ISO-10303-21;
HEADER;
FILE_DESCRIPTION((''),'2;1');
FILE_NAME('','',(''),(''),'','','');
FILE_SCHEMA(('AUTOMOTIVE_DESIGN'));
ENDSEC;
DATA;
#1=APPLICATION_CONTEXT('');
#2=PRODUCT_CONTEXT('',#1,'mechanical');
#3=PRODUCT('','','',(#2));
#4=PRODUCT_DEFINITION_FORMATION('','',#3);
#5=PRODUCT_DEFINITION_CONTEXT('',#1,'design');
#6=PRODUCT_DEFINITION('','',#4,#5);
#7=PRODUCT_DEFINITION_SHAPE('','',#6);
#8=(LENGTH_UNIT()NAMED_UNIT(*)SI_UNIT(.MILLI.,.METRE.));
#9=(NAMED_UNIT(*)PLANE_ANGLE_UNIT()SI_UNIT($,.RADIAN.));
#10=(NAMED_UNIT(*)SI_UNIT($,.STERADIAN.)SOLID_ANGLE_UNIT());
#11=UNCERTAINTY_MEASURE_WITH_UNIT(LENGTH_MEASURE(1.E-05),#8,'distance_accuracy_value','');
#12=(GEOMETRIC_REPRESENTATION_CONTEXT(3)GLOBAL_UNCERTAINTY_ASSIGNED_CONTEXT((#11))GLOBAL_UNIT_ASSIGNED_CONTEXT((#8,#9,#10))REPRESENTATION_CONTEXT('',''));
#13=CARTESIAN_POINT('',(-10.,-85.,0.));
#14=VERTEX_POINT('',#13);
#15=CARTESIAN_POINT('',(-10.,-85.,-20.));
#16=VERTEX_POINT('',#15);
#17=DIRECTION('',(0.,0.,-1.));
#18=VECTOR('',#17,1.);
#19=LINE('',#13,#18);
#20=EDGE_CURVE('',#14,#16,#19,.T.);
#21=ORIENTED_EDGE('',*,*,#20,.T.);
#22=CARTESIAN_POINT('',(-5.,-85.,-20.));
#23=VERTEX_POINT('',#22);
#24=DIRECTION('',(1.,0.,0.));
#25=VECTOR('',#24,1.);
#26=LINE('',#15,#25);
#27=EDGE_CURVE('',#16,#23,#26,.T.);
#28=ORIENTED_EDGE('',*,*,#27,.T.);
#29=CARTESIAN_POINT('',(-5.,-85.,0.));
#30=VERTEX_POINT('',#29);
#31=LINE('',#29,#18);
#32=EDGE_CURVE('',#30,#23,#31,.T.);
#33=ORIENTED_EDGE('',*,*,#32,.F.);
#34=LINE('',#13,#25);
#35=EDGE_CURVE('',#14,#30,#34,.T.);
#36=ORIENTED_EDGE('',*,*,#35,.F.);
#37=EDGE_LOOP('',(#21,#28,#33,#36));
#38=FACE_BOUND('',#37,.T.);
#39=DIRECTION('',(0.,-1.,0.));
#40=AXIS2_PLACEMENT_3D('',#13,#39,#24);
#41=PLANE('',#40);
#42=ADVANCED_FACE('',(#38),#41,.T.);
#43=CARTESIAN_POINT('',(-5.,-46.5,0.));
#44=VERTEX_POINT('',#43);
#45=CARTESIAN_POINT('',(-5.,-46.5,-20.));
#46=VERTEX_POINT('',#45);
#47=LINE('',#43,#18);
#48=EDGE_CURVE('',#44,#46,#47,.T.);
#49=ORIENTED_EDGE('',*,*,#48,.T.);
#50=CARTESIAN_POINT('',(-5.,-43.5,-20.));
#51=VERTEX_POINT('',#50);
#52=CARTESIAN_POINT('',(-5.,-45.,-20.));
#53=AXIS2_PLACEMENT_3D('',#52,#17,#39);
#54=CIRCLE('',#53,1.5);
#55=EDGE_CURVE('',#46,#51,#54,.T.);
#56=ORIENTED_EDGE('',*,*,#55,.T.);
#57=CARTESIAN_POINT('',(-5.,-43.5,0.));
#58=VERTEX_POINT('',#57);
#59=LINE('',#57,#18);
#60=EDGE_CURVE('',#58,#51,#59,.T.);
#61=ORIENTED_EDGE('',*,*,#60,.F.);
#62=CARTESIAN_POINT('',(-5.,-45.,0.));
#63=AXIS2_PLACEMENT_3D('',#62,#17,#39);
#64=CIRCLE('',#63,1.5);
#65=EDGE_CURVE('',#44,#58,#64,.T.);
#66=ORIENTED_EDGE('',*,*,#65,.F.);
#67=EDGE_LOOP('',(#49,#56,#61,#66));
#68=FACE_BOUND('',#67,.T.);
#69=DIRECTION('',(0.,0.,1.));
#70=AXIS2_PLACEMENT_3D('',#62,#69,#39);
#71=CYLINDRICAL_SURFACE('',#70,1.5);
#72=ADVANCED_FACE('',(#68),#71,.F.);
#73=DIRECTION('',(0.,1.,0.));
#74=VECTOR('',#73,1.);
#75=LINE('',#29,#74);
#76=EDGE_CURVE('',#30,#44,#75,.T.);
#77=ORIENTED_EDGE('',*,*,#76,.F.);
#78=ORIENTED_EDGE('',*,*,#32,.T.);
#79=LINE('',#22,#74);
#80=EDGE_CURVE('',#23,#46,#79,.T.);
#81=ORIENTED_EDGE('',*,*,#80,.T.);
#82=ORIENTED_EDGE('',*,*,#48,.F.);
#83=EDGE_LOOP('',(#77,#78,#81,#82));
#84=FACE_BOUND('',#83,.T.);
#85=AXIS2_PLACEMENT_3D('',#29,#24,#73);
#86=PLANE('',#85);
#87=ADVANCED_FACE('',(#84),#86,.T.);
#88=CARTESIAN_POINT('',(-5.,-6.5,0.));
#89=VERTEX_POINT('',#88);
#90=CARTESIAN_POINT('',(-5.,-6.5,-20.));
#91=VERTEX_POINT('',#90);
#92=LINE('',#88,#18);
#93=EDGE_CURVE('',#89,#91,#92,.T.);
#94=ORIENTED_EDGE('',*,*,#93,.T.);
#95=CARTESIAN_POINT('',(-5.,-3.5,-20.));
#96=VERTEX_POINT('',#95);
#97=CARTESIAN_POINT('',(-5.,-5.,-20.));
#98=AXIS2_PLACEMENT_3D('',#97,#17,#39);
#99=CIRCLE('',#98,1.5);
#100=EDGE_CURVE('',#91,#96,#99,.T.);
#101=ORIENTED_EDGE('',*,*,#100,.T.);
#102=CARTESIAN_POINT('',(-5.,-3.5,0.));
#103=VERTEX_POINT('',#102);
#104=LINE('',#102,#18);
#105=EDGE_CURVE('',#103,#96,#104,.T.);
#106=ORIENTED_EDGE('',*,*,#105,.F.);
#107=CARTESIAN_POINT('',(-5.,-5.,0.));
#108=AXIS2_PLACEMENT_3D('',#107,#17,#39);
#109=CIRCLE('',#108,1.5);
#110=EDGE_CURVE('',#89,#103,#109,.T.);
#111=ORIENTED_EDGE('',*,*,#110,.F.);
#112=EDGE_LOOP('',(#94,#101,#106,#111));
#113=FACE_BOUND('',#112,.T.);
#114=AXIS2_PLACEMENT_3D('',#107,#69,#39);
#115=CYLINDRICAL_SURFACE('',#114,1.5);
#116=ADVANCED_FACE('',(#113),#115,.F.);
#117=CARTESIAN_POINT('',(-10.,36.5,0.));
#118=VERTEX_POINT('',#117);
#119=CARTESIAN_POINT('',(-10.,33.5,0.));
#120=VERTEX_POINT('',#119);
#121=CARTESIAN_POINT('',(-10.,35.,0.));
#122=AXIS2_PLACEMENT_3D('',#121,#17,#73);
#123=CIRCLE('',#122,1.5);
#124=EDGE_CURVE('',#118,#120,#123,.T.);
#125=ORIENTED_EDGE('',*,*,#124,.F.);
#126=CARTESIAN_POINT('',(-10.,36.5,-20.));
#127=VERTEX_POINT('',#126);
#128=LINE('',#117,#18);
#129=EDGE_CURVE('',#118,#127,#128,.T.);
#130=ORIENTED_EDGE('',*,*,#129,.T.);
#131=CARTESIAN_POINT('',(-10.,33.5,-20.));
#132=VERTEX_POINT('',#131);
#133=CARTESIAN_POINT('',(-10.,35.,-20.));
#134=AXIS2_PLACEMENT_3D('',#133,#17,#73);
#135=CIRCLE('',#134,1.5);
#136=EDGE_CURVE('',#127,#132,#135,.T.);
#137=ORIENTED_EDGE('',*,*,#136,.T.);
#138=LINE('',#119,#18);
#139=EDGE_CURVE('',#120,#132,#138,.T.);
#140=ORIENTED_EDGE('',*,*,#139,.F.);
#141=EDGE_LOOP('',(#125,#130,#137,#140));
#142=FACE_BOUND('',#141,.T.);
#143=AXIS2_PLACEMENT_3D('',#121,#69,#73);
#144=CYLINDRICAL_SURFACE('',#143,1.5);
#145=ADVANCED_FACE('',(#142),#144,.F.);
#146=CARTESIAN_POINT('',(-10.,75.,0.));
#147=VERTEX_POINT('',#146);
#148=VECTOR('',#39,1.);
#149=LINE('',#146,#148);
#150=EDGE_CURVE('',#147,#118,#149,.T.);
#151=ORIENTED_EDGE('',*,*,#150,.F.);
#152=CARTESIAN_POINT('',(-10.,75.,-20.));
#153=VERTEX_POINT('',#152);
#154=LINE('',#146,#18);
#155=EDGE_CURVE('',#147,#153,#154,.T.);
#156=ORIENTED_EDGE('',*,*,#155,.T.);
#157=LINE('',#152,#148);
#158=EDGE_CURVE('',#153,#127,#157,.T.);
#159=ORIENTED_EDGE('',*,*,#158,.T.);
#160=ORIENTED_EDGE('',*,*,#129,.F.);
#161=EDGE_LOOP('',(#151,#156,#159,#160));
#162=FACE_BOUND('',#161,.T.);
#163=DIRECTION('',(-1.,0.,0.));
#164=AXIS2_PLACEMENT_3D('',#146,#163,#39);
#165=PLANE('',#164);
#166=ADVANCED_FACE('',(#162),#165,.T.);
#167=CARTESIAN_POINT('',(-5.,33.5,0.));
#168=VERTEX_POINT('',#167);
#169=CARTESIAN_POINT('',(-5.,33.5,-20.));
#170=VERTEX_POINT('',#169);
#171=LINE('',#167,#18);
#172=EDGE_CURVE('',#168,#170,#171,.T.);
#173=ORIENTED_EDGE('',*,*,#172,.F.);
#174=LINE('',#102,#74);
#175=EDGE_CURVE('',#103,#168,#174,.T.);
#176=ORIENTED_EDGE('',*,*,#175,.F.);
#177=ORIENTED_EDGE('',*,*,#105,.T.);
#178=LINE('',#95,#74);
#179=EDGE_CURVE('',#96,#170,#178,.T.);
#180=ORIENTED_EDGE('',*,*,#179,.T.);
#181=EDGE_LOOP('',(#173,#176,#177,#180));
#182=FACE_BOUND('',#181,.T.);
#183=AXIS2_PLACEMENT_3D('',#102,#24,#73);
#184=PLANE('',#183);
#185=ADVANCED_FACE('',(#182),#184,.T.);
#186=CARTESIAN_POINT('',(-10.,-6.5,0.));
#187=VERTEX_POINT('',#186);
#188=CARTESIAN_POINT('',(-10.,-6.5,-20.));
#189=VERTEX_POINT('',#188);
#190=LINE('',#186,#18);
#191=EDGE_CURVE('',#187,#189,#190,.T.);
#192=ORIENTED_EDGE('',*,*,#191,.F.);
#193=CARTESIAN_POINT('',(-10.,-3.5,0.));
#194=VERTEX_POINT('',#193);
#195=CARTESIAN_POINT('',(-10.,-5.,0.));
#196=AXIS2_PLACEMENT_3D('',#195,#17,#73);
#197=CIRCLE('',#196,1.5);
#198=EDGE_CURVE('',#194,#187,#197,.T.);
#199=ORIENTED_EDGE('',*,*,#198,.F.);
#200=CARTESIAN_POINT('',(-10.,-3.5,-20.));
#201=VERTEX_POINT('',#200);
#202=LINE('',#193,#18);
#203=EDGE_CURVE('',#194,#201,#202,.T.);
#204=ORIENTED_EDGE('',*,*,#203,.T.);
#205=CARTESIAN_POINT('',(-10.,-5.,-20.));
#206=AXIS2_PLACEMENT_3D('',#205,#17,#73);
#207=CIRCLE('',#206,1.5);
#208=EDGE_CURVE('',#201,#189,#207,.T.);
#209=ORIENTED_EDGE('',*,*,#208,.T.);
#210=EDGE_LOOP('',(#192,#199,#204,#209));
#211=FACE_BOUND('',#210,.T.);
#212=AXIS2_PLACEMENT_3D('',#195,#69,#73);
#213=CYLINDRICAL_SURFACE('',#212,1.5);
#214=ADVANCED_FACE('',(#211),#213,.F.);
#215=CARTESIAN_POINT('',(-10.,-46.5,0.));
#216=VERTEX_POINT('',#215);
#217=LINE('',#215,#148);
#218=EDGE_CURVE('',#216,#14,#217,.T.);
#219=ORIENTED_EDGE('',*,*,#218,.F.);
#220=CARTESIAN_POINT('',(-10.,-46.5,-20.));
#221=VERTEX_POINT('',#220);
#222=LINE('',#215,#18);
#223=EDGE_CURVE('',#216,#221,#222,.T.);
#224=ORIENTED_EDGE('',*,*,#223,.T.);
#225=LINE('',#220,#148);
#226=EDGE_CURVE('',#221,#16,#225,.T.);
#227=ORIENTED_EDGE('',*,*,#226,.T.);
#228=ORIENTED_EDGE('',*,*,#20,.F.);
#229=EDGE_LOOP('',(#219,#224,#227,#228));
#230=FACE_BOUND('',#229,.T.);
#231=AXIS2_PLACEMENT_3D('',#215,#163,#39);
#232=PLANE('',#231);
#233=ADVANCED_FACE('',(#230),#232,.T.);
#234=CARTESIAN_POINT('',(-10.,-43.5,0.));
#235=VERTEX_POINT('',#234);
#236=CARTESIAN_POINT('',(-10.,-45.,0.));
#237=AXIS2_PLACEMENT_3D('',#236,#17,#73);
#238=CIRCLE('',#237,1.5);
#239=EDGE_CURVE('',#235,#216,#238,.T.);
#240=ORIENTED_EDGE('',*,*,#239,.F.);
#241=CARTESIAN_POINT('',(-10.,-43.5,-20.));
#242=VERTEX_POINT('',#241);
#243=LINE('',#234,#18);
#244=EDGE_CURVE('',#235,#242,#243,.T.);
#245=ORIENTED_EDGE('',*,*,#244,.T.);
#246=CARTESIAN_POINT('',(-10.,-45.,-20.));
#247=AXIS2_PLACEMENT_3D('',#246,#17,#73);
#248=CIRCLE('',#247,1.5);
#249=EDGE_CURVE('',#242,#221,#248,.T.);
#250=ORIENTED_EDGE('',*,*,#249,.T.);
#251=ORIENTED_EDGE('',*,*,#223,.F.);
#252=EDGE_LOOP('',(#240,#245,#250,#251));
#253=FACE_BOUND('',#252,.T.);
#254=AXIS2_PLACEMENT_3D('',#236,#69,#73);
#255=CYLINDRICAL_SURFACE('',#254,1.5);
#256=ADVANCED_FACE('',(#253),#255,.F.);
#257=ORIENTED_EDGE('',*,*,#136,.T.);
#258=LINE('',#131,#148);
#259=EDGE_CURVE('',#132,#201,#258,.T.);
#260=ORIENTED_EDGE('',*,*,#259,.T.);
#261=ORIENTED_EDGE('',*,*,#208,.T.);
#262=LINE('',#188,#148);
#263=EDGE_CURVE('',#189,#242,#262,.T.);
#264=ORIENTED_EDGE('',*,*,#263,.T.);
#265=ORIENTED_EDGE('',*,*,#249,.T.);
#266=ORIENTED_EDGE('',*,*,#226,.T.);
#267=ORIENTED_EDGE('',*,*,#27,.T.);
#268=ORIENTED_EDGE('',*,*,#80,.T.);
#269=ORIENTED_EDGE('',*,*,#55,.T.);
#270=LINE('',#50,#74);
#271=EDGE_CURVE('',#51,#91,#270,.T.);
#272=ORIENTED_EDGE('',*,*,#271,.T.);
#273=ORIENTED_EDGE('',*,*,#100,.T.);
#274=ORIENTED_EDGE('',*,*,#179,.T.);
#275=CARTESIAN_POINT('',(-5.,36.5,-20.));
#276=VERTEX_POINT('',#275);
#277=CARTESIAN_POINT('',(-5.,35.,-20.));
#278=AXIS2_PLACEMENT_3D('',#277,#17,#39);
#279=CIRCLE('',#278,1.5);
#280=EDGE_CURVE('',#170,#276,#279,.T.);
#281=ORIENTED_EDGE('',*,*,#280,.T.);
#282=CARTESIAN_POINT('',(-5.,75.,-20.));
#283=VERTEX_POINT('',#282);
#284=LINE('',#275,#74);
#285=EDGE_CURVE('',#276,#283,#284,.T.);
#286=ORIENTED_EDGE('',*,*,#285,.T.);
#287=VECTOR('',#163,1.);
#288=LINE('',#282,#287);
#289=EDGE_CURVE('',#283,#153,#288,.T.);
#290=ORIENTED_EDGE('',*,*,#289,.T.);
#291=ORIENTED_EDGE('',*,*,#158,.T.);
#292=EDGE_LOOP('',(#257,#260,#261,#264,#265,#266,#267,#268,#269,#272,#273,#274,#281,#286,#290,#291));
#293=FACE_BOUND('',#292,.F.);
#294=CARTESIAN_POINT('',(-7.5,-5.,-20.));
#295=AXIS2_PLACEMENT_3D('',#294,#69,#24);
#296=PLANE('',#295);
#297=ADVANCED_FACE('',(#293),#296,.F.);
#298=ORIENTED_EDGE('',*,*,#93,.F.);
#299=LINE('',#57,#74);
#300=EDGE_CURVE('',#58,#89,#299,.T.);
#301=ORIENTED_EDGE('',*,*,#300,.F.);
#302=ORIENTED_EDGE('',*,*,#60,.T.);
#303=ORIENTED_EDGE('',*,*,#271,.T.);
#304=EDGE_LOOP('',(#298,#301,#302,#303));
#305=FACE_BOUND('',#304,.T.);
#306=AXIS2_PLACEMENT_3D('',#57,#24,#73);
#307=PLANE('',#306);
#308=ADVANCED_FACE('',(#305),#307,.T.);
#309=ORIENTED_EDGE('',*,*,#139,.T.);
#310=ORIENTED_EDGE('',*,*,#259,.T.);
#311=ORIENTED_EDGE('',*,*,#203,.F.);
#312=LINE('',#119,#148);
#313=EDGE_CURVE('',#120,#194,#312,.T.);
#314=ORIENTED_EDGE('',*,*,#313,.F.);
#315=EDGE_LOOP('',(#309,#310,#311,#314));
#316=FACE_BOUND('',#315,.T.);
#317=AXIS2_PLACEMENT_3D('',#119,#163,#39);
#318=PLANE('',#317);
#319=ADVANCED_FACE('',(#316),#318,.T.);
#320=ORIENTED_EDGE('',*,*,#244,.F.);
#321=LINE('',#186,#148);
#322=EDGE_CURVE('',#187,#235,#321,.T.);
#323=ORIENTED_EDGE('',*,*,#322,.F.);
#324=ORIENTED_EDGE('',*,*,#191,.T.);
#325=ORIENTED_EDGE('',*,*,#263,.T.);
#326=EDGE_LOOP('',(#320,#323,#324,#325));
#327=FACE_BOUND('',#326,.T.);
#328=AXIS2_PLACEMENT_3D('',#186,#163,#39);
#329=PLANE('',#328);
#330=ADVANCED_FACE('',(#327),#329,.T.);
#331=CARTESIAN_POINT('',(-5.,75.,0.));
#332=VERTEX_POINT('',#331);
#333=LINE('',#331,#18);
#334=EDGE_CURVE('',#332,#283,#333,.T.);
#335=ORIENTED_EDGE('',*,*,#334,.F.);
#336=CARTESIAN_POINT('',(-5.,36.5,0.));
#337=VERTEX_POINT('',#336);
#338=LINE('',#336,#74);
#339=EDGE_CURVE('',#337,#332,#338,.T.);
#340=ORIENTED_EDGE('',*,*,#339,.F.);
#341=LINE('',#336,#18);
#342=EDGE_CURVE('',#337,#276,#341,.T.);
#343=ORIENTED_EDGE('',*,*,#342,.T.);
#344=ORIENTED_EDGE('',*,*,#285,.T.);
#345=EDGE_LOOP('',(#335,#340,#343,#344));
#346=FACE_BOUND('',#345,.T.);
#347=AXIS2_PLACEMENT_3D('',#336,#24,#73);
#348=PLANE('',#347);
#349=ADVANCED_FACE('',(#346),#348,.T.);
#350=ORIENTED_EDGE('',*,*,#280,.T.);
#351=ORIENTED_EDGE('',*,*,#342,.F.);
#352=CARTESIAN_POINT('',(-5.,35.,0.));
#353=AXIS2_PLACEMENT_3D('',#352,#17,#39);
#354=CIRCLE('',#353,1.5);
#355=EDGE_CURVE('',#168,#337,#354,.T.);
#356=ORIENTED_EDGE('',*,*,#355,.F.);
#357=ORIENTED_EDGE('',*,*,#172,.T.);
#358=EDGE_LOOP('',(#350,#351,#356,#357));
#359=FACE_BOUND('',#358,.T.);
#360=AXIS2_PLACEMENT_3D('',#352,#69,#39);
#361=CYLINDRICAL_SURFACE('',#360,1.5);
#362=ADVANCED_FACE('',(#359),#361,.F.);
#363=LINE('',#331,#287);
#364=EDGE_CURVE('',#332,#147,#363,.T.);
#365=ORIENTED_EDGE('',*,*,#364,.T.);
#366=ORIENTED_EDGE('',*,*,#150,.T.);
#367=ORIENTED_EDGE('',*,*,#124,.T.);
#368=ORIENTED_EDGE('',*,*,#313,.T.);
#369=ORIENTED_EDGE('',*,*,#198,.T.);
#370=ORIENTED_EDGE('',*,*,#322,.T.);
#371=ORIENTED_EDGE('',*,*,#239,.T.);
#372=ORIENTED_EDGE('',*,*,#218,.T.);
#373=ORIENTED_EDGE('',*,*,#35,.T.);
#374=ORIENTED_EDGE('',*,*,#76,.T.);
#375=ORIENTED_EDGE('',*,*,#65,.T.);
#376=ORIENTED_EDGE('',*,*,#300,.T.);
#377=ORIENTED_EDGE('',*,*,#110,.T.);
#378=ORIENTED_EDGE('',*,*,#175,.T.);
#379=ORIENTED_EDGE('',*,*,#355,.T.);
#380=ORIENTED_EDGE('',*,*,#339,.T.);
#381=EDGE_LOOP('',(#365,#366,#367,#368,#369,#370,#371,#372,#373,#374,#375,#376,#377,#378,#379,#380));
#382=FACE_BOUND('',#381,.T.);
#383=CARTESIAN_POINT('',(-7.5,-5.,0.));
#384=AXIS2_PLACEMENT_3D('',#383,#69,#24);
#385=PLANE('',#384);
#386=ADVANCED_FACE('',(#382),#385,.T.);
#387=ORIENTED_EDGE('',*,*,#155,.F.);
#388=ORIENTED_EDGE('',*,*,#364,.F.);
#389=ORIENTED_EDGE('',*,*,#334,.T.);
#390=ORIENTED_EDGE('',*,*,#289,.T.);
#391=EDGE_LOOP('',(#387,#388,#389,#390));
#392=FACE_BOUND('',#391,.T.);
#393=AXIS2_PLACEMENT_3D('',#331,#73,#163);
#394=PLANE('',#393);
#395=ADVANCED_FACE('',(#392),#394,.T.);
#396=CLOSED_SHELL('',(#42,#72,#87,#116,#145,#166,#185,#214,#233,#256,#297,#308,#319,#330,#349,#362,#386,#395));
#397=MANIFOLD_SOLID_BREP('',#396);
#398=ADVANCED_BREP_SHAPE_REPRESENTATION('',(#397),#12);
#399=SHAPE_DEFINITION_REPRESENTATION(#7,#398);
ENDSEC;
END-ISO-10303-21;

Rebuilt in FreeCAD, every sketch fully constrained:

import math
import FreeCAD as App
import Part
import Sketcher

doc = App.newDocument("Part")
params = doc.addObject("Spreadsheet::Sheet", "Params")
for row, (alias, value) in enumerate([
    ("sketch1_radius", "1.5 mm"),
    ("sketch1_width", "5 mm"),
    ("sketch1_height", "37 mm"),
    ("sketch1_height2", "38.5 mm"),
    ("pad1_length", "20 mm"),
], start=1):
    params.set(f"A{row}", alias)
    params.set(f"B{row}", "=" + value)
    params.setAlias(f"B{row}", alias)

body = doc.addObject("PartDesign::Body", "Body")

sketch1 = doc.addObject("Sketcher::SketchObject", "Sketch")
body.addObject(sketch1)
sketch1.AttachmentSupport = (doc.XY_Plane, [""])
sketch1.MapMode = "FlatFace"
sketch1.addGeometry([
    Part.LineSegment(App.Vector(-5, 75, 0), App.Vector(-10, 75, 0)),
    Part.LineSegment(App.Vector(-10, 75, 0), App.Vector(-10, 36.5, 0)),
    Part.ArcOfCircle(Part.Circle(App.Vector(-10, 35, 0), App.Vector(0, 0, 1), 1.5), math.radians(-90), math.radians(90)),
    Part.LineSegment(App.Vector(-10, 33.5, 0), App.Vector(-10, -3.5, 0)),
    Part.ArcOfCircle(Part.Circle(App.Vector(-10, -5, 0), App.Vector(0, 0, 1), 1.5), math.radians(-90), math.radians(90)),
    Part.LineSegment(App.Vector(-10, -6.5, 0), App.Vector(-10, -43.5, 0)),
    Part.ArcOfCircle(Part.Circle(App.Vector(-10, -45, 0), App.Vector(0, 0, 1), 1.5), math.radians(-90), math.radians(90)),
    Part.LineSegment(App.Vector(-10, -46.5, 0), App.Vector(-10, -85, 0)),
    Part.LineSegment(App.Vector(-10, -85, 0), App.Vector(-5, -85, 0)),
    Part.LineSegment(App.Vector(-5, -85, 0), App.Vector(-5, -46.5, 0)),
    Part.ArcOfCircle(Part.Circle(App.Vector(-5, -45, 0), App.Vector(0, 0, 1), 1.5), math.radians(90), math.radians(270)),
    Part.LineSegment(App.Vector(-5, -43.5, 0), App.Vector(-5, -6.5, 0)),
    Part.ArcOfCircle(Part.Circle(App.Vector(-5, -5, 0), App.Vector(0, 0, 1), 1.5), math.radians(90), math.radians(270)),
    Part.LineSegment(App.Vector(-5, -3.5, 0), App.Vector(-5, 33.5, 0)),
    Part.ArcOfCircle(Part.Circle(App.Vector(-5, 35, 0), App.Vector(0, 0, 1), 1.5), math.radians(90), math.radians(270)),
    Part.LineSegment(App.Vector(-5, 36.5, 0), App.Vector(-5, 75, 0)),
], False)
sketch1.addConstraint([
    Sketcher.Constraint("Coincident", 0, 2, 1, 1),
    Sketcher.Constraint("Coincident", 1, 2, 2, 2),
    Sketcher.Constraint("Coincident", 2, 1, 3, 1),
    Sketcher.Constraint("Coincident", 3, 2, 4, 2),
    Sketcher.Constraint("Coincident", 4, 1, 5, 1),
    Sketcher.Constraint("Coincident", 5, 2, 6, 2),
    Sketcher.Constraint("Coincident", 6, 1, 7, 1),
    Sketcher.Constraint("Coincident", 7, 2, 8, 1),
    Sketcher.Constraint("Coincident", 8, 2, 9, 1),
    Sketcher.Constraint("Coincident", 9, 2, 10, 2),
    Sketcher.Constraint("Coincident", 10, 1, 11, 1),
    Sketcher.Constraint("Coincident", 11, 2, 12, 2),
    Sketcher.Constraint("Coincident", 12, 1, 13, 1),
    Sketcher.Constraint("Coincident", 13, 2, 14, 2),
    Sketcher.Constraint("Coincident", 14, 1, 15, 1),
    Sketcher.Constraint("Coincident", 15, 2, 0, 1),
    Sketcher.Constraint("Horizontal", 0),
    Sketcher.Constraint("Vertical", 1),
    Sketcher.Constraint("Vertical", 3),
    Sketcher.Constraint("Vertical", 5),
    Sketcher.Constraint("Vertical", 7),
    Sketcher.Constraint("Horizontal", 8),
    Sketcher.Constraint("Vertical", 9),
    Sketcher.Constraint("Vertical", 11),
    Sketcher.Constraint("Vertical", 13),
    Sketcher.Constraint("Vertical", 15),
    Sketcher.Constraint("Equal", 2, 4),
    Sketcher.Constraint("Equal", 4, 6),
    Sketcher.Constraint("Equal", 6, 10),
    Sketcher.Constraint("Equal", 10, 12),
    Sketcher.Constraint("Equal", 12, 14),
    Sketcher.Constraint("Horizontal", 6, 3, 10, 3),
    Sketcher.Constraint("Horizontal", 4, 3, 12, 3),
    Sketcher.Constraint("Horizontal", 2, 3, 14, 3),
    Sketcher.Constraint("Vertical", 2, 3, 4, 3),
    Sketcher.Constraint("Vertical", 4, 3, 6, 3),
    Sketcher.Constraint("Vertical", 10, 3, 12, 3),
    Sketcher.Constraint("Vertical", 12, 3, 14, 3),
    Sketcher.Constraint("Vertical", 6, 3, 0, 2),
    Sketcher.Constraint("Vertical", 1, 2, 2, 1),
    Sketcher.Constraint("Vertical", 3, 2, 4, 1),
    Sketcher.Constraint("Vertical", 5, 2, 6, 1),
    Sketcher.Constraint("Vertical", 14, 3, 8, 2),
    Sketcher.Constraint("Vertical", 9, 2, 10, 1),
    Sketcher.Constraint("Vertical", 11, 2, 12, 1),
    Sketcher.Constraint("Vertical", 13, 2, 14, 1),
    Sketcher.Constraint("Equal", 3, 5),
    Sketcher.Constraint("Equal", 1, 7),
    Sketcher.Constraint("Radius", 2, 1.5),
    Sketcher.Constraint("DistanceX", 0, 2, 0, 1, 5.0),
    Sketcher.Constraint("DistanceY", 3, 2, 3, 1, 37.0),
    Sketcher.Constraint("DistanceY", 1, 2, 1, 1, 38.5),
    Sketcher.Constraint("DistanceX", 2, 3, -1, 1, 10.0),
    Sketcher.Constraint("DistanceY", -1, 1, 2, 3, 35.0),
])
sketch1.setExpression("Constraints[48]", "Params.sketch1_radius")
sketch1.setExpression("Constraints[49]", "Params.sketch1_width")
sketch1.setExpression("Constraints[50]", "Params.sketch1_height")
sketch1.setExpression("Constraints[51]", "Params.sketch1_height2")
pad1 = doc.addObject("PartDesign::Pad", "Pad")
body.addObject(pad1)
pad1.Profile = sketch1
pad1.setExpression("Length", "Params.pad1_length")
pad1.Reversed = True

doc.recompute()
